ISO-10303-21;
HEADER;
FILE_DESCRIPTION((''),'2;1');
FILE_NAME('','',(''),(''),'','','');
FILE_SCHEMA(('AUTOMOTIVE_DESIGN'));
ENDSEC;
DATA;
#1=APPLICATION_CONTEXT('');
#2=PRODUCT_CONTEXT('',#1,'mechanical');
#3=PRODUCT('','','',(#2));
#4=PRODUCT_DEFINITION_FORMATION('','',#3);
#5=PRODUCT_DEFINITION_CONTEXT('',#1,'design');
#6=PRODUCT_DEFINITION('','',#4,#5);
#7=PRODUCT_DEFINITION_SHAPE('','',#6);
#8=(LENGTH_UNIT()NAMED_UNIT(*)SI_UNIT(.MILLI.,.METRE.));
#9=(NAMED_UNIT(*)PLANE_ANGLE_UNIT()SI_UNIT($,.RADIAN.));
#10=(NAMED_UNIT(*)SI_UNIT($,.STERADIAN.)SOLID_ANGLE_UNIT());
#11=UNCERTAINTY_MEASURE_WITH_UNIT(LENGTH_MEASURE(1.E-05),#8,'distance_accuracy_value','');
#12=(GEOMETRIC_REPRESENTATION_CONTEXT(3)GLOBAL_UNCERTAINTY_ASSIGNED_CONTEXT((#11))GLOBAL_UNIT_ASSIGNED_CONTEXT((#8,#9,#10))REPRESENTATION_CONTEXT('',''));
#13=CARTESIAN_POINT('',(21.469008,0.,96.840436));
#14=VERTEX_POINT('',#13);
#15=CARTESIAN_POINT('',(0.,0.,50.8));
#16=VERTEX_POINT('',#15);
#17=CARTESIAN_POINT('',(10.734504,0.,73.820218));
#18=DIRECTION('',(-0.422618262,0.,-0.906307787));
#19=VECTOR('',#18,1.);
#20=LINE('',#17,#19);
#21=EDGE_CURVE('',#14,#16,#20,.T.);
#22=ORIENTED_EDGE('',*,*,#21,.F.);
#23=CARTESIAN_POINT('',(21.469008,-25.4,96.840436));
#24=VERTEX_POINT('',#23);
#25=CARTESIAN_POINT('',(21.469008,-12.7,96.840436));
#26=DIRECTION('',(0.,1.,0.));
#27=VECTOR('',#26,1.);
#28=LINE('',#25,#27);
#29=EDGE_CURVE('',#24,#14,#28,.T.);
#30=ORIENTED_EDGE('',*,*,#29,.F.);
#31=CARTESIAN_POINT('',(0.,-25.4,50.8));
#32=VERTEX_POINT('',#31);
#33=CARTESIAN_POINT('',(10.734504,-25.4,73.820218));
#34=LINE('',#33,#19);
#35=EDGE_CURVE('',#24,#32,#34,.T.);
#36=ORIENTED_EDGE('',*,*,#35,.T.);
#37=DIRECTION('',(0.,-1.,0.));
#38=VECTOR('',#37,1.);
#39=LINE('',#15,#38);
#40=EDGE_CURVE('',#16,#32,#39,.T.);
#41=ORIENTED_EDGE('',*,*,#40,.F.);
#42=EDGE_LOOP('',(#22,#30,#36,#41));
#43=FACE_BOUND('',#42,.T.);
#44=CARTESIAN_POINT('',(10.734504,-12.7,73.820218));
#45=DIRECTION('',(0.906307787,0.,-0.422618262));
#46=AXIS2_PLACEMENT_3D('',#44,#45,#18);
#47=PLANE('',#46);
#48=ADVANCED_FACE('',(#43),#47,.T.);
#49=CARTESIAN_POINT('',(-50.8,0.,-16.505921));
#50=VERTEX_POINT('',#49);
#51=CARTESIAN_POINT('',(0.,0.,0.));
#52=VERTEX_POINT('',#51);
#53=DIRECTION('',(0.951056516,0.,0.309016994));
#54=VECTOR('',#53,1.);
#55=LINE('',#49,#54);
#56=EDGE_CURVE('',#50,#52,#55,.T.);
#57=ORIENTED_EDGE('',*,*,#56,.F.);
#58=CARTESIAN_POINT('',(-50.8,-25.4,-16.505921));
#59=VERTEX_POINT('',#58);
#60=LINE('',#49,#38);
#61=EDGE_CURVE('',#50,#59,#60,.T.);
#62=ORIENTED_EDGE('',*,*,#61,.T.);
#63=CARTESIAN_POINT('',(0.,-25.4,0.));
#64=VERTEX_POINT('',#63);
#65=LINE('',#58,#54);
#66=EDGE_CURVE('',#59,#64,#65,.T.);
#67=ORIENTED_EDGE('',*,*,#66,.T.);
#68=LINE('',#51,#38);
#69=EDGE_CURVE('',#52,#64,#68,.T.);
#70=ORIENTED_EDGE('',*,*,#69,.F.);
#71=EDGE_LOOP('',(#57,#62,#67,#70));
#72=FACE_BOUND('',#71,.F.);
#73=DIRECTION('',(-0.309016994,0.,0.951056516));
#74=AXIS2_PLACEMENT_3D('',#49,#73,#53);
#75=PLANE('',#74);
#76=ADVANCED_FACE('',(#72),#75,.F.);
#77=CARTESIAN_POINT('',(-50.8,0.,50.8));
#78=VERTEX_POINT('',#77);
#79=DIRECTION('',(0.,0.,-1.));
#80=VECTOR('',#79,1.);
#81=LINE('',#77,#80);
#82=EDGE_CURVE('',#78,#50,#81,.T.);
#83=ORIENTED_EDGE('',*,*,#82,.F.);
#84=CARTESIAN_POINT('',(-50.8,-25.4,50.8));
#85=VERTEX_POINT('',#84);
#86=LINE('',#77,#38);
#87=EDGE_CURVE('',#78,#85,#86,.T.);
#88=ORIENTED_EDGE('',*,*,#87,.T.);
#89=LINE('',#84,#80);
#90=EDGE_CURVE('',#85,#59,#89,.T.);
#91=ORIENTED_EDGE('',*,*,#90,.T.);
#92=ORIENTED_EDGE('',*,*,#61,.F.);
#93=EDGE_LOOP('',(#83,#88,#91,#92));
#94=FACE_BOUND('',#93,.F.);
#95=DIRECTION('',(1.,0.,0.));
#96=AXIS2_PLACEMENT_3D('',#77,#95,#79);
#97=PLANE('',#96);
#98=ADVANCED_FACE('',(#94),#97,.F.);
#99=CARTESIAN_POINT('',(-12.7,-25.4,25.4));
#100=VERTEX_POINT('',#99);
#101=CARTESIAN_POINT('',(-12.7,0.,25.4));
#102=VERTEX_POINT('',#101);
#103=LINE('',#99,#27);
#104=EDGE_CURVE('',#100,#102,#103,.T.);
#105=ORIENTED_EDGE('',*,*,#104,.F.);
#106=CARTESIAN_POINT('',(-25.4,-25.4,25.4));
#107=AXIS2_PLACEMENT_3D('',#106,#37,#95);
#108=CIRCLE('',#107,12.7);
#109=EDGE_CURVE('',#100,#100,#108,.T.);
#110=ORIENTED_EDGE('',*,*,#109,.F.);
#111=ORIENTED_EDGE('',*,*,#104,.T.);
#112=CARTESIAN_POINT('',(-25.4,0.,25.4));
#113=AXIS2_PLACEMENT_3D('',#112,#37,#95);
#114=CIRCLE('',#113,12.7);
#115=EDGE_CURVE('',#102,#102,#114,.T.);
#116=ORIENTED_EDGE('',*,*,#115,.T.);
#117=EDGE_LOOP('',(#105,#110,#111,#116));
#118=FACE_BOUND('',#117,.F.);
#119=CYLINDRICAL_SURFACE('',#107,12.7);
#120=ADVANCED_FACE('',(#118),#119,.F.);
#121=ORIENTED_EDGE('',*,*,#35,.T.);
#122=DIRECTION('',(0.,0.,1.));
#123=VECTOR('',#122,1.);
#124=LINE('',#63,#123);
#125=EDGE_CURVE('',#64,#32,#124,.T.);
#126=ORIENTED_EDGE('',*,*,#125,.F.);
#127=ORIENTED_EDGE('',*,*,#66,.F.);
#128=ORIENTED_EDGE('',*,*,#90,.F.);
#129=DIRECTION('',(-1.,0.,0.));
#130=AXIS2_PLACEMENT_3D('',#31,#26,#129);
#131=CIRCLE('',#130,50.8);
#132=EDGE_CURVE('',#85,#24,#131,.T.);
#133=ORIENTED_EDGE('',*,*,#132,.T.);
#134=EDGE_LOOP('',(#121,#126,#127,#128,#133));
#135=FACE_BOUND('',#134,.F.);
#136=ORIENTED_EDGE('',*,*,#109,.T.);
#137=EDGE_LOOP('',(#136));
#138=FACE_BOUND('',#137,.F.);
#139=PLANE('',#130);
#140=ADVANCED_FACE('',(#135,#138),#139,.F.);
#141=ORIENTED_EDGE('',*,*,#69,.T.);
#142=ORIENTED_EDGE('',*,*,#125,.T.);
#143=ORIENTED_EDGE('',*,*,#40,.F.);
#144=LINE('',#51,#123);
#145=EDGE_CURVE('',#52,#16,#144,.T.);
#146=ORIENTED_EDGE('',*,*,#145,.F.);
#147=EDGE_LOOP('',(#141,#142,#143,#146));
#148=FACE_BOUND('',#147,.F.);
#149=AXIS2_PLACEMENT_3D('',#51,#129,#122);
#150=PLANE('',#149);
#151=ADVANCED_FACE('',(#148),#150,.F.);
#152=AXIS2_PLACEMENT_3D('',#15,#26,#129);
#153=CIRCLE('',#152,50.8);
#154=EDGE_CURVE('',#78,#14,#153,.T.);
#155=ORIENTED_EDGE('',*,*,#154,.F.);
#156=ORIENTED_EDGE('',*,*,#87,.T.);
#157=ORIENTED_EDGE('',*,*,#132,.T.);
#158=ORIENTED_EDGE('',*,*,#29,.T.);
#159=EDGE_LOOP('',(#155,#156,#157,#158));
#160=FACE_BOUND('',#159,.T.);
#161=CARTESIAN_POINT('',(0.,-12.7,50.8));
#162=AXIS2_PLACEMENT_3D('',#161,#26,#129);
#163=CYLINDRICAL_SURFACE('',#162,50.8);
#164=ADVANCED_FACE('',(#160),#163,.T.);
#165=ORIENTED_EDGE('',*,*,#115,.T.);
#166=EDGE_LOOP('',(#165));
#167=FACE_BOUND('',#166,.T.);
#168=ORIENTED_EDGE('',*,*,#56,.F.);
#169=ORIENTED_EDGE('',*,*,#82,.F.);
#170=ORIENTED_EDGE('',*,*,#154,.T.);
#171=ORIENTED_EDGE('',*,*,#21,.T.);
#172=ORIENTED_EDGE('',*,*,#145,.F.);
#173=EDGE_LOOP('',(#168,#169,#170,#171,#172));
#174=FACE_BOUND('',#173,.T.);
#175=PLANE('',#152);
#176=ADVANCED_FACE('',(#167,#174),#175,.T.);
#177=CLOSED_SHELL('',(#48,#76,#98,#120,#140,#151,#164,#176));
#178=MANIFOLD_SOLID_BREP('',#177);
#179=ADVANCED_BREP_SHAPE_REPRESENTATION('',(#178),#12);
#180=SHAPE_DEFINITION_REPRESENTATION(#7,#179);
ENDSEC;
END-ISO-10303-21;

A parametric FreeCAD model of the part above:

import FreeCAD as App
import Part
import Sketcher
Q = App.Units.Quantity


def add_polygon(sketch, points):
    """Adds a closed chain of lines whose ends are joined by coincident constraints."""
    first, n = sketch.GeometryCount, len(points)
    for a, b in zip(points, points[1:] + points[:1]):
        sketch.addGeometry(Part.LineSegment(App.Vector(*a, 0), App.Vector(*b, 0)), False)
    for i in range(n):
        sketch.addConstraint(Sketcher.Constraint("Coincident", first + i, 2, first + (i + 1) % n, 1))

doc = App.newDocument("Part")
params = doc.addObject("Spreadsheet::Sheet", "Params")
for row, (alias, value) in enumerate([
    ("sketch1_width", "2 in"),
    ("pad1_length", "1 in"),
    ("sketch2_diameter", "1 in"),
    ("sketch3_width", "2 in"),
    ("sketch3_height", "1 in"),
    ("revolution_angle", "115 deg"),
], start=1):
    params.set(f"A{row}", alias)
    params.set(f"B{row}", "=" + value)
    params.setAlias(f"B{row}", alias)

body = doc.addObject("PartDesign::Body", "Body")

# Sketch on XZ plane
sketch1 = doc.addObject("Sketcher::SketchObject", "Sketch")
body.addObject(sketch1)
sketch1.AttachmentSupport = (doc.XZ_Plane, [""])
sketch1.MapMode = "FlatFace"
add_polygon(sketch1, [(0, 51), (-51, 51), (-51, -17), (0, 0)])  # lines 0-3
sketch1.addConstraint([
    Sketcher.Constraint("Horizontal", 0),
    Sketcher.Constraint("Vertical", 1),
    Sketcher.Constraint("Vertical", 3),
    Sketcher.Constraint("Coincident", 2, 2, -1, 1),
    Sketcher.Constraint("Equal", 0, 3),
    Sketcher.Constraint("DistanceX", 0, 2, 0, 1, Q("2 in")),
    Sketcher.Constraint("Angle", 2, Q("18 deg")),
])
sketch1.setExpression("Constraints[9]", "Params.sketch1_width")
pad1 = doc.addObject("PartDesign::Pad", "Pad")
body.addObject(pad1)
pad1.Profile = sketch1
pad1.setExpression("Length", "Params.pad1_length")

# Sketch on XZ plane
sketch2 = doc.addObject("Sketcher::SketchObject", "Sketch001")
body.addObject(sketch2)
sketch2.AttachmentSupport = (doc.XZ_Plane, [""])
sketch2.MapMode = "FlatFace"
sketch2.AttachmentOffset = App.Placement(App.Vector(0, 0, 1 * 25.4), App.Rotation())
sketch2.addGeometry(Part.Circle(App.Vector(-25, 25, 0), App.Vector(0, 0, 1), 13), False)
sketch2.addConstraint([
    Sketcher.Constraint("Diameter", 0, Q("1 in")),
    Sketcher.Constraint("DistanceX", 0, 3, -1, 1, Q("1 in")),
    Sketcher.Constraint("DistanceY", -1, 1, 0, 3, Q("1 in")),
])
sketch2.setExpression("Constraints[0]", "Params.sketch2_diameter")
pocket1 = doc.addObject("PartDesign::Pocket", "Pocket")
body.addObject(pocket1)
pocket1.Profile = sketch2
pocket1.Type = "ThroughAll"

# Sketch on XY plane
sketch3 = doc.addObject("Sketcher::SketchObject", "Sketch002")
body.addObject(sketch3)
sketch3.AttachmentSupport = (doc.XY_Plane, [""])
sketch3.MapMode = "FlatFace"
sketch3.AttachmentOffset = App.Placement(App.Vector(0, 0, 2 * 25.4), App.Rotation())
add_polygon(sketch3, [(-51, 0), (-51, -25), (0, -25), (0, 0)])  # lines 0-3
sketch3.addConstraint([
    Sketcher.Constraint("Vertical", 0),
    Sketcher.Constraint("Horizontal", 1),
    Sketcher.Constraint("Vertical", 2),
    Sketcher.Constraint("Horizontal", 3),
    Sketcher.Constraint("Coincident", 2, 2, -1, 1),
    Sketcher.Constraint("DistanceX", 1, 1, 1, 2, Q("2 in")),
    Sketcher.Constraint("DistanceY", 0, 2, 0, 1, Q("1 in")),
])
sketch3.setExpression("Constraints[9]", "Params.sketch3_width")
sketch3.setExpression("Constraints[10]", "Params.sketch3_height")
revolution = doc.addObject("PartDesign::Revolution", "Revolution")
body.addObject(revolution)
revolution.Profile = sketch3
revolution.ReferenceAxis = (sketch3, ["V_Axis"])
revolution.setExpression("Angle", "Params.revolution_angle")

doc.recompute()
